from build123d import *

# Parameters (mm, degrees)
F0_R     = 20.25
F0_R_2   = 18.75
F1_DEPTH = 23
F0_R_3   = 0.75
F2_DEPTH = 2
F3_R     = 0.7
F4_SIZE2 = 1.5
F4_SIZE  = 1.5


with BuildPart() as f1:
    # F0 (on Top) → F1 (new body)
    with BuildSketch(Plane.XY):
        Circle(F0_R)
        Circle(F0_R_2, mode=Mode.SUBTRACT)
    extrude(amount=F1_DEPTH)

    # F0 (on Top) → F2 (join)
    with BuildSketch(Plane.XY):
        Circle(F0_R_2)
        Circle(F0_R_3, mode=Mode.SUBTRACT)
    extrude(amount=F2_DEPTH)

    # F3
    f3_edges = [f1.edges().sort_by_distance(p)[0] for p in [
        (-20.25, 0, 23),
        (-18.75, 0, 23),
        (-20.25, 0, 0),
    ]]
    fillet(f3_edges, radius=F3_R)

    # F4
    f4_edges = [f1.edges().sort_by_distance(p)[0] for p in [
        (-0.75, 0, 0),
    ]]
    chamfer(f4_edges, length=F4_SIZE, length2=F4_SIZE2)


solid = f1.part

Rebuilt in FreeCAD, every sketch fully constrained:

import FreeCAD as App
import Part
import Sketcher

V = App.Vector
Q = App.Units.Quantity


def edges_at(feature, points):
    """Names of the edges that pass closest to the given points."""
    edges = feature.Shape.Edges
    near = lambda p: min(range(len(edges)), key=lambda i: edges[i].distToShape(Part.Vertex(*p))[0])
    return sorted({f"Edge{near(p) + 1}" for p in points})

doc = App.newDocument("Part")
body = doc.addObject("PartDesign::Body", "Body")

# Sketch on XY plane
sketch1 = doc.addObject("Sketcher::SketchObject", "Sketch")
body.addObject(sketch1)
sketch1.AttachmentSupport = (doc.XY_Plane, [""])
sketch1.MapMode = "FlatFace"
sketch1.addGeometry(Part.Circle(V(0, 0, 0), V(0, 0, 1), 20), False)
sketch1.addGeometry(Part.Circle(V(0, 0, 0), V(0, 0, 1), 19), False)
sketch1.addConstraint(Sketcher.Constraint("Coincident", 0, 3, -1, 1))
sketch1.addConstraint(Sketcher.Constraint("Coincident", 1, 3, -1, 1))
sketch1.addConstraint(Sketcher.Constraint("Diameter", 0, Q("40.5 mm")))
sketch1.addConstraint(Sketcher.Constraint("Diameter", 1, Q("37.5 mm")))
pad1 = doc.addObject("PartDesign::Pad", "Pad")
body.addObject(pad1)
pad1.Profile = sketch1
pad1.Length = 23

# Sketch on XY plane
sketch2 = doc.addObject("Sketcher::SketchObject", "Sketch001")
body.addObject(sketch2)
sketch2.AttachmentSupport = (doc.XY_Plane, [""])
sketch2.MapMode = "FlatFace"
sketch2.addGeometry(Part.Circle(V(0, 0, 0), V(0, 0, 1), 18.8), False)
sketch2.addGeometry(Part.Circle(V(0, 0, 0), V(0, 0, 1), 0.8), False)
sketch2.addConstraint(Sketcher.Constraint("Coincident", 0, 3, -1, 1))
sketch2.addConstraint(Sketcher.Constraint("Coincident", 1, 3, -1, 1))
sketch2.addConstraint(Sketcher.Constraint("Diameter", 0, Q("37.5 mm")))
sketch2.addConstraint(Sketcher.Constraint("Diameter", 1, Q("1.5 mm")))
pad2 = doc.addObject("PartDesign::Pad", "Pad001")
body.addObject(pad2)
pad2.Profile = sketch2
pad2.Length = 2
doc.recompute()

fillet = doc.addObject("PartDesign::Fillet", "Fillet")
body.addObject(fillet)
fillet.Base = (pad2, edges_at(pad2, [(-20.25, 0, 23), (-18.75, 0, 23), (-20.25, 0, 0)]))
fillet.Radius = 0.7
doc.recompute()

chamfer = doc.addObject("PartDesign::Chamfer", "Chamfer")
body.addObject(chamfer)
chamfer.Base = (fillet, edges_at(fillet, [(-0.75, 0, 0)]))
chamfer.ChamferType = "Two distances"
chamfer.Size = 1.5
chamfer.Size2 = 1.5

doc.recompute()
